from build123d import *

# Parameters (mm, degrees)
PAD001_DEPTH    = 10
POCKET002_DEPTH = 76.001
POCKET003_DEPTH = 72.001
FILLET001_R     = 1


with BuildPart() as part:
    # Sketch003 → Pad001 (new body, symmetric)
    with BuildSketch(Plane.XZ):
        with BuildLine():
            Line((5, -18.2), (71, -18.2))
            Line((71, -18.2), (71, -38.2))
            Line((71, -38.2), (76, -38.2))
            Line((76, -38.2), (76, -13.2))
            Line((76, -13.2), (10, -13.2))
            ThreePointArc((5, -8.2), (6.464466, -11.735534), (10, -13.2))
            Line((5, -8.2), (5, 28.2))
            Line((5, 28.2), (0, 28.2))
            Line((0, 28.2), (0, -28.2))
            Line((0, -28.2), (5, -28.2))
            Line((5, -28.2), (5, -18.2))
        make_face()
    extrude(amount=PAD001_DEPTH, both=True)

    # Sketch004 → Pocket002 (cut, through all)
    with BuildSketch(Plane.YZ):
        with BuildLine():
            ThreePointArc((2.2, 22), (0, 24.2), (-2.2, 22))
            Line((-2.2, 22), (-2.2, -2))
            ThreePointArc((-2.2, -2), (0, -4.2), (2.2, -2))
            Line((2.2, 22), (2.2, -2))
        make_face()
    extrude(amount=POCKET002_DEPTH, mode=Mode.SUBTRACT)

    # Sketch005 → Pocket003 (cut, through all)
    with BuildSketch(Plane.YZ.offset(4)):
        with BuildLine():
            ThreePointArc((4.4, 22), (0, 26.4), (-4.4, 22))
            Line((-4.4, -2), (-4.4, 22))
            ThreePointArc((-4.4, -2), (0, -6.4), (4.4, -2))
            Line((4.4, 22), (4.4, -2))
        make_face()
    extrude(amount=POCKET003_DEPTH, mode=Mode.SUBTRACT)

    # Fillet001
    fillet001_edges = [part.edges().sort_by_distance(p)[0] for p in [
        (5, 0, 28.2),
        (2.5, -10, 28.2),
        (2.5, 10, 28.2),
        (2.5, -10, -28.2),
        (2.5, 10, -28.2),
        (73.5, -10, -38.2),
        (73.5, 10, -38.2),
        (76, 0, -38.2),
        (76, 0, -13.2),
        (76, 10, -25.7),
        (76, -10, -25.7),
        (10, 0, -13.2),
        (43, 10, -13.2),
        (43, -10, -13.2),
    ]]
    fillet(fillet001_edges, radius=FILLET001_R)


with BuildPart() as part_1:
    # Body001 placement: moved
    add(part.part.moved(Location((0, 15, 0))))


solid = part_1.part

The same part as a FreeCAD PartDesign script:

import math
import FreeCAD as App
import Part
import Sketcher
Q = App.Units.Quantity


def edges_at(feature, points):
    """Names of the edges that pass closest to the given points."""
    edges = feature.Shape.Edges
    near = lambda p: min(range(len(edges)), key=lambda i: edges[i].distToShape(Part.Vertex(*p))[0])
    return sorted({f"Edge{near(p) + 1}" for p in points})

doc = App.newDocument("Part")
body = doc.addObject("PartDesign::Body", "Body")

sketch1 = body.newObject("Sketcher::SketchObject", "Sketch")
sketch1.AttachmentSupport = (doc.getObject("XZ_Plane"), [""])
sketch1.MapMode = "FlatFace"
sketch1.addGeometry(Part.LineSegment(App.Vector(5, -18.2, 0), App.Vector(71, -18.2, 0)), False)
sketch1.addGeometry(Part.LineSegment(App.Vector(71, -18.2, 0), App.Vector(71, -38.2, 0)), False)
sketch1.addGeometry(Part.LineSegment(App.Vector(71, -38.2, 0), App.Vector(76, -38.2, 0)), False)
sketch1.addGeometry(Part.LineSegment(App.Vector(76, -38.2, 0), App.Vector(76, -13.2, 0)), False)
sketch1.addGeometry(Part.LineSegment(App.Vector(76, -13.2, 0), App.Vector(10, -13.2, 0)), False)
sketch1.addGeometry(Part.ArcOfCircle(Part.Circle(App.Vector(10, -8.2, 0), App.Vector(0, 0, 1), 5), math.radians(180), math.radians(270)), False)
sketch1.addGeometry(Part.LineSegment(App.Vector(5, -8.2, 0), App.Vector(5, 28.2, 0)), False)
sketch1.addGeometry(Part.LineSegment(App.Vector(5, 28.2, 0), App.Vector(0, 28.2, 0)), False)
sketch1.addGeometry(Part.LineSegment(App.Vector(0, 28.2, 0), App.Vector(0, -28.2, 0)), False)
sketch1.addGeometry(Part.LineSegment(App.Vector(0, -28.2, 0), App.Vector(5, -28.2, 0)), False)
sketch1.addGeometry(Part.LineSegment(App.Vector(5, -28.2, 0), App.Vector(5, -18.2, 0)), False)
sketch1.addConstraint(Sketcher.Constraint("Coincident", 0, 2, 1, 1))
sketch1.addConstraint(Sketcher.Constraint("Coincident", 1, 2, 2, 1))
sketch1.addConstraint(Sketcher.Constraint("Coincident", 2, 2, 3, 1))
sketch1.addConstraint(Sketcher.Constraint("Coincident", 3, 2, 4, 1))
sketch1.addConstraint(Sketcher.Constraint("Tangent", 4, 2, 5, 2))
sketch1.addConstraint(Sketcher.Constraint("Tangent", 5, 1, 6, 1))
sketch1.addConstraint(Sketcher.Constraint("Coincident", 6, 2, 7, 1))
sketch1.addConstraint(Sketcher.Constraint("Coincident", 7, 2, 8, 1))
sketch1.addConstraint(Sketcher.Constraint("Coincident", 8, 2, 9, 1))
sketch1.addConstraint(Sketcher.Constraint("Coincident", 9, 2, 10, 1))
sketch1.addConstraint(Sketcher.Constraint("Coincident", 10, 2, 0, 1))
sketch1.addConstraint(Sketcher.Constraint("Horizontal", 0))
sketch1.addConstraint(Sketcher.Constraint("Vertical", 1))
sketch1.addConstraint(Sketcher.Constraint("Horizontal", 2))
sketch1.addConstraint(Sketcher.Constraint("Vertical", 3))
sketch1.addConstraint(Sketcher.Constraint("Horizontal", 4))
sketch1.addConstraint(Sketcher.Constraint("Vertical", 6))
sketch1.addConstraint(Sketcher.Constraint("Horizontal", 7))
sketch1.addConstraint(Sketcher.Constraint("Vertical", 8))
sketch1.addConstraint(Sketcher.Constraint("Horizontal", 9))
sketch1.addConstraint(Sketcher.Constraint("Vertical", 10))
sketch1.addConstraint(Sketcher.Constraint("Symmetric", 7, 2, 8, 2, -1, 1))
sketch1.addConstraint(Sketcher.Constraint("Vertical", 6, 2, 9, 2))
sketch1.addConstraint(Sketcher.Constraint("Equal", 0, 4))
sketch1.addConstraint(Sketcher.Constraint("Equal", 2, 7))
sketch1.addConstraint(Sketcher.Constraint("Radius", 5, Q("5 mm")))
sketch1.addConstraint(Sketcher.Constraint("DistanceX", 0, 1, 0, 2, Q("66 mm")))
sketch1.addConstraint(Sketcher.Constraint("DistanceY", 1, 2, 1, 1, Q("20 mm")))
sketch1.addConstraint(Sketcher.Constraint("DistanceY", 3, 1, 3, 2, Q("25 mm")))
sketch1.addConstraint(Sketcher.Constraint("DistanceY", 10, 1, 10, 2, Q("10 mm")))
sketch1.addConstraint(Sketcher.Constraint("DistanceY", 6, 1, 6, 2, Q("36.4 mm")))
pad1 = body.newObject("PartDesign::Pad", "Pad")
pad1.Profile = sketch1
pad1.Length = 20
pad1.Midplane = True

sketch2 = body.newObject("Sketcher::SketchObject", "Sketch001")
sketch2.AttachmentSupport = (doc.getObject("YZ_Plane"), [""])
sketch2.MapMode = "FlatFace"
sketch2.addGeometry(Part.ArcOfCircle(Part.Circle(App.Vector(0, 22, 0), App.Vector(0, 0, 1), 2.2), math.radians(0), math.radians(180)), False)
sketch2.addGeometry(Part.LineSegment(App.Vector(-2.2, 22, 0), App.Vector(-2.2, -2, 0)), False)
sketch2.addGeometry(Part.ArcOfCircle(Part.Circle(App.Vector(0, -2, 0), App.Vector(0, 0, 1), 2.2), math.radians(180), math.radians(360)), False)
sketch2.addGeometry(Part.LineSegment(App.Vector(2.2, -2, 0), App.Vector(2.2, 22, 0)), False)
sketch2.addConstraint(Sketcher.Constraint("Tangent", 0, 2, 1, 1))
sketch2.addConstraint(Sketcher.Constraint("Tangent", 1, 2, 2, 1))
sketch2.addConstraint(Sketcher.Constraint("Tangent", 2, 2, 3, 1))
sketch2.addConstraint(Sketcher.Constraint("Tangent", 3, 2, 0, 1))
sketch2.addConstraint(Sketcher.Constraint("Vertical", 1))
sketch2.addConstraint(Sketcher.Constraint("Vertical", 3))
sketch2.addConstraint(Sketcher.Constraint("PointOnObject", 0, 3, -2))
sketch2.addConstraint(Sketcher.Constraint("Radius", 0, Q("2.2 mm")))
sketch2.addConstraint(Sketcher.Constraint("DistanceY", 1, 2, 1, 1, Q("24 mm")))
sketch2.addConstraint(Sketcher.Constraint("DistanceY", -1, 1, 0, 3, Q("22 mm")))
pocket1 = body.newObject("PartDesign::Pocket", "Pocket")
pocket1.Profile = sketch2
pocket1.Type = "ThroughAll"
pocket1.Reversed = True

sketch3 = body.newObject("Sketcher::SketchObject", "Sketch002")
sketch3.AttachmentSupport = (doc.getObject("YZ_Plane"), [""])
sketch3.MapMode = "FlatFace"
sketch3.AttachmentOffset = App.Placement(App.Vector(0, 0, 4), App.Rotation())
sketch3.addGeometry(Part.ArcOfCircle(Part.Circle(App.Vector(0, 22, 0), App.Vector(0, 0, 1), 4.4), math.radians(0), math.radians(180)), False)
sketch3.addGeometry(Part.LineSegment(App.Vector(-4.4, 22, 0), App.Vector(-4.4, -2, 0)), False)
sketch3.addGeometry(Part.ArcOfCircle(Part.Circle(App.Vector(0, -2, 0), App.Vector(0, 0, 1), 4.4), math.radians(180), math.radians(360)), False)
sketch3.addGeometry(Part.LineSegment(App.Vector(4.4, -2, 0), App.Vector(4.4, 22, 0)), False)
sketch3.addConstraint(Sketcher.Constraint("Tangent", 0, 2, 1, 1))
sketch3.addConstraint(Sketcher.Constraint("Tangent", 1, 2, 2, 1))
sketch3.addConstraint(Sketcher.Constraint("Tangent", 2, 2, 3, 1))
sketch3.addConstraint(Sketcher.Constraint("Tangent", 3, 2, 0, 1))
sketch3.addConstraint(Sketcher.Constraint("Vertical", 1))
sketch3.addConstraint(Sketcher.Constraint("Vertical", 3))
sketch3.addConstraint(Sketcher.Constraint("PointOnObject", 0, 3, -2))
sketch3.addConstraint(Sketcher.Constraint("Radius", 0, Q("4.4 mm")))
sketch3.addConstraint(Sketcher.Constraint("DistanceY", 1, 2, 1, 1, Q("24 mm")))
sketch3.addConstraint(Sketcher.Constraint("DistanceY", -1, 1, 0, 3, Q("22 mm")))
pocket2 = body.newObject("PartDesign::Pocket", "Pocket001")
pocket2.Profile = sketch3
pocket2.Type = "ThroughAll"
pocket2.Reversed = True
doc.recompute()

fillet = body.newObject("PartDesign::Fillet", "Fillet")
fillet.Base = (pocket2, edges_at(pocket2, [
    (5, 0, 28.2),
    (2.5, -10, 28.2),
    (2.5, 10, 28.2),
    (2.5, -10, -28.2),
    (2.5, 10, -28.2),
    (73.5, -10, -38.2),
    (73.5, 10, -38.2),
    (76, 0, -38.2),
    (76, 0, -13.2),
    (76, 10, -25.7),
    (76, -10, -25.7),
    (10, 0, -13.2),
    (43, 10, -13.2),
    (43, -10, -13.2),
]))
fillet.Radius = 1
body2 = doc.addObject("PartDesign::Body", "Body001")
doc.recompute()

body.Placement = App.Placement(App.Vector(0, 15, 0), App.Rotation(App.Vector(0, 0, 1), 0))
boolean = body2.newObject("PartDesign::Boolean", "Boolean")
boolean.Type = "Fuse"
boolean.addObjects([body])

doc.recompute()
